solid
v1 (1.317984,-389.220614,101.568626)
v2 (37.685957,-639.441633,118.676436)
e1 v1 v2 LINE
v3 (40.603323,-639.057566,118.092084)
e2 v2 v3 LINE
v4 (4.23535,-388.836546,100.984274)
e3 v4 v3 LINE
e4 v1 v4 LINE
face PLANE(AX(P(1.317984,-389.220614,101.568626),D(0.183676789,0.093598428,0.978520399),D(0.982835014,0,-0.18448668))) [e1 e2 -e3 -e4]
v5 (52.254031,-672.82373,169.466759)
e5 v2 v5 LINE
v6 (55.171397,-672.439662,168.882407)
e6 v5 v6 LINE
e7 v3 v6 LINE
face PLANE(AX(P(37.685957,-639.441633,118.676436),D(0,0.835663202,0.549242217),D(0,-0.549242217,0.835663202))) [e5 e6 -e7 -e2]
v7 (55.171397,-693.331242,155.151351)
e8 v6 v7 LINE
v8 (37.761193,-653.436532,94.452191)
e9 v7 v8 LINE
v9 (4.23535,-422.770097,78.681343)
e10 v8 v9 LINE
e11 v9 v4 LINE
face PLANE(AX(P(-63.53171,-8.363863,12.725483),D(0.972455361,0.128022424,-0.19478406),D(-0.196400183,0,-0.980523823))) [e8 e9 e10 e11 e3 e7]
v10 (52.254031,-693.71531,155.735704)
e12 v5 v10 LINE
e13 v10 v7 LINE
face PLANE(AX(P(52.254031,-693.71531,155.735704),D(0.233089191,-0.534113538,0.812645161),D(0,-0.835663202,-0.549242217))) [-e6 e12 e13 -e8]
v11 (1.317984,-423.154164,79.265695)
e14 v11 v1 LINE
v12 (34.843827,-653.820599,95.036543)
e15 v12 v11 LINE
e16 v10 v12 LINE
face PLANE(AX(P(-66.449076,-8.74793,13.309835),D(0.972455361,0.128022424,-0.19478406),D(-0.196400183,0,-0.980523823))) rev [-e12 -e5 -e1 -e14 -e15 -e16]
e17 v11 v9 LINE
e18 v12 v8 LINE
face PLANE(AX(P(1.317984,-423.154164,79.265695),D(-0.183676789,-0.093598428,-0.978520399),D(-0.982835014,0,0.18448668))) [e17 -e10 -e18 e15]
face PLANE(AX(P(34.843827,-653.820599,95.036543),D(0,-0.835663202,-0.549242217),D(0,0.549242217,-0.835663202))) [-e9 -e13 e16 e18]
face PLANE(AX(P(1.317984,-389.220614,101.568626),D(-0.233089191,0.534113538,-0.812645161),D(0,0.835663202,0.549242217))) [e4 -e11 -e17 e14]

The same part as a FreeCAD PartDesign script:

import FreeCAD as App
import Part
import Sketcher
from FreeCAD import Vector
Q = App.Units.Quantity

doc = App.newDocument("Part")
body = doc.addObject("PartDesign::Body", "Body")

sketch1 = doc.addObject("Sketcher::SketchObject", "Sketch")
body.addObject(sketch1)
sketch1.Placement = App.Placement(Vector(-63.53171, -8.363863, 12.725483), App.Rotation(Vector(0.233089191, -0.534113538, 0.812645161), Vector(0, -0.835663202, -0.549242217), Vector(0.972455361, 0.128022424, -0.19478406), "ZXY"))
sketch1.addGeometry(Part.LineSegment(Vector(291, 310, 0), Vector(291, 269, 0)), False)
sketch1.addGeometry(Part.LineSegment(Vector(291, 269, 0), Vector(447, 469, 0)), False)
sketch1.addGeometry(Part.LineSegment(Vector(447, 469, 0), Vector(509, 469, 0)), False)
sketch1.addGeometry(Part.LineSegment(Vector(509, 469, 0), Vector(509, 494, 0)), False)
sketch1.addGeometry(Part.LineSegment(Vector(509, 494, 0), Vector(435, 494, 0)), False)
sketch1.addGeometry(Part.LineSegment(Vector(435, 494, 0), Vector(291, 310, 0)), False)
sketch1.addConstraint(Sketcher.Constraint("Coincident", 0, 2, 1, 1))
sketch1.addConstraint(Sketcher.Constraint("Coincident", 1, 2, 2, 1))
sketch1.addConstraint(Sketcher.Constraint("Coincident", 2, 2, 3, 1))
sketch1.addConstraint(Sketcher.Constraint("Coincident", 3, 2, 4, 1))
sketch1.addConstraint(Sketcher.Constraint("Coincident", 4, 2, 5, 1))
sketch1.addConstraint(Sketcher.Constraint("Coincident", 5, 2, 0, 1))
sketch1.addConstraint(Sketcher.Constraint("Vertical", 0))
sketch1.addConstraint(Sketcher.Constraint("Horizontal", 2))
sketch1.addConstraint(Sketcher.Constraint("Vertical", 3))
sketch1.addConstraint(Sketcher.Constraint("Horizontal", 4))
sketch1.addConstraint(Sketcher.Constraint("Parallel", 1, 5))
sketch1.addConstraint(Sketcher.Constraint("DistanceY", 3, 1, 3, 2, Q("25 mm")))
sketch1.addConstraint(Sketcher.Constraint("Angle", 1, Q("52 deg")))
sketch1.addConstraint(Sketcher.Constraint("DistanceX", 2, 1, 2, 2, Q("62.5 mm")))
sketch1.addConstraint(Sketcher.Constraint("Distance", 5, Q("233.622999 mm")))
sketch1.addConstraint(Sketcher.Constraint("DistanceY", 0, 2, 0, 1, Q("40.606731 mm")))
sketch1.addConstraint(Sketcher.Constraint("DistanceY", -1, 1, 5, 2, Q("310.078298 mm")))
sketch1.addConstraint(Sketcher.Constraint("DistanceX", -1, 1, 0, 2, Q("290.734459 mm")))
pad1 = doc.addObject("PartDesign::Pad", "Pad")
body.addObject(pad1)
pad1.Profile = sketch1
pad1.Length = 3
pad1.Reversed = True

doc.recompute()
